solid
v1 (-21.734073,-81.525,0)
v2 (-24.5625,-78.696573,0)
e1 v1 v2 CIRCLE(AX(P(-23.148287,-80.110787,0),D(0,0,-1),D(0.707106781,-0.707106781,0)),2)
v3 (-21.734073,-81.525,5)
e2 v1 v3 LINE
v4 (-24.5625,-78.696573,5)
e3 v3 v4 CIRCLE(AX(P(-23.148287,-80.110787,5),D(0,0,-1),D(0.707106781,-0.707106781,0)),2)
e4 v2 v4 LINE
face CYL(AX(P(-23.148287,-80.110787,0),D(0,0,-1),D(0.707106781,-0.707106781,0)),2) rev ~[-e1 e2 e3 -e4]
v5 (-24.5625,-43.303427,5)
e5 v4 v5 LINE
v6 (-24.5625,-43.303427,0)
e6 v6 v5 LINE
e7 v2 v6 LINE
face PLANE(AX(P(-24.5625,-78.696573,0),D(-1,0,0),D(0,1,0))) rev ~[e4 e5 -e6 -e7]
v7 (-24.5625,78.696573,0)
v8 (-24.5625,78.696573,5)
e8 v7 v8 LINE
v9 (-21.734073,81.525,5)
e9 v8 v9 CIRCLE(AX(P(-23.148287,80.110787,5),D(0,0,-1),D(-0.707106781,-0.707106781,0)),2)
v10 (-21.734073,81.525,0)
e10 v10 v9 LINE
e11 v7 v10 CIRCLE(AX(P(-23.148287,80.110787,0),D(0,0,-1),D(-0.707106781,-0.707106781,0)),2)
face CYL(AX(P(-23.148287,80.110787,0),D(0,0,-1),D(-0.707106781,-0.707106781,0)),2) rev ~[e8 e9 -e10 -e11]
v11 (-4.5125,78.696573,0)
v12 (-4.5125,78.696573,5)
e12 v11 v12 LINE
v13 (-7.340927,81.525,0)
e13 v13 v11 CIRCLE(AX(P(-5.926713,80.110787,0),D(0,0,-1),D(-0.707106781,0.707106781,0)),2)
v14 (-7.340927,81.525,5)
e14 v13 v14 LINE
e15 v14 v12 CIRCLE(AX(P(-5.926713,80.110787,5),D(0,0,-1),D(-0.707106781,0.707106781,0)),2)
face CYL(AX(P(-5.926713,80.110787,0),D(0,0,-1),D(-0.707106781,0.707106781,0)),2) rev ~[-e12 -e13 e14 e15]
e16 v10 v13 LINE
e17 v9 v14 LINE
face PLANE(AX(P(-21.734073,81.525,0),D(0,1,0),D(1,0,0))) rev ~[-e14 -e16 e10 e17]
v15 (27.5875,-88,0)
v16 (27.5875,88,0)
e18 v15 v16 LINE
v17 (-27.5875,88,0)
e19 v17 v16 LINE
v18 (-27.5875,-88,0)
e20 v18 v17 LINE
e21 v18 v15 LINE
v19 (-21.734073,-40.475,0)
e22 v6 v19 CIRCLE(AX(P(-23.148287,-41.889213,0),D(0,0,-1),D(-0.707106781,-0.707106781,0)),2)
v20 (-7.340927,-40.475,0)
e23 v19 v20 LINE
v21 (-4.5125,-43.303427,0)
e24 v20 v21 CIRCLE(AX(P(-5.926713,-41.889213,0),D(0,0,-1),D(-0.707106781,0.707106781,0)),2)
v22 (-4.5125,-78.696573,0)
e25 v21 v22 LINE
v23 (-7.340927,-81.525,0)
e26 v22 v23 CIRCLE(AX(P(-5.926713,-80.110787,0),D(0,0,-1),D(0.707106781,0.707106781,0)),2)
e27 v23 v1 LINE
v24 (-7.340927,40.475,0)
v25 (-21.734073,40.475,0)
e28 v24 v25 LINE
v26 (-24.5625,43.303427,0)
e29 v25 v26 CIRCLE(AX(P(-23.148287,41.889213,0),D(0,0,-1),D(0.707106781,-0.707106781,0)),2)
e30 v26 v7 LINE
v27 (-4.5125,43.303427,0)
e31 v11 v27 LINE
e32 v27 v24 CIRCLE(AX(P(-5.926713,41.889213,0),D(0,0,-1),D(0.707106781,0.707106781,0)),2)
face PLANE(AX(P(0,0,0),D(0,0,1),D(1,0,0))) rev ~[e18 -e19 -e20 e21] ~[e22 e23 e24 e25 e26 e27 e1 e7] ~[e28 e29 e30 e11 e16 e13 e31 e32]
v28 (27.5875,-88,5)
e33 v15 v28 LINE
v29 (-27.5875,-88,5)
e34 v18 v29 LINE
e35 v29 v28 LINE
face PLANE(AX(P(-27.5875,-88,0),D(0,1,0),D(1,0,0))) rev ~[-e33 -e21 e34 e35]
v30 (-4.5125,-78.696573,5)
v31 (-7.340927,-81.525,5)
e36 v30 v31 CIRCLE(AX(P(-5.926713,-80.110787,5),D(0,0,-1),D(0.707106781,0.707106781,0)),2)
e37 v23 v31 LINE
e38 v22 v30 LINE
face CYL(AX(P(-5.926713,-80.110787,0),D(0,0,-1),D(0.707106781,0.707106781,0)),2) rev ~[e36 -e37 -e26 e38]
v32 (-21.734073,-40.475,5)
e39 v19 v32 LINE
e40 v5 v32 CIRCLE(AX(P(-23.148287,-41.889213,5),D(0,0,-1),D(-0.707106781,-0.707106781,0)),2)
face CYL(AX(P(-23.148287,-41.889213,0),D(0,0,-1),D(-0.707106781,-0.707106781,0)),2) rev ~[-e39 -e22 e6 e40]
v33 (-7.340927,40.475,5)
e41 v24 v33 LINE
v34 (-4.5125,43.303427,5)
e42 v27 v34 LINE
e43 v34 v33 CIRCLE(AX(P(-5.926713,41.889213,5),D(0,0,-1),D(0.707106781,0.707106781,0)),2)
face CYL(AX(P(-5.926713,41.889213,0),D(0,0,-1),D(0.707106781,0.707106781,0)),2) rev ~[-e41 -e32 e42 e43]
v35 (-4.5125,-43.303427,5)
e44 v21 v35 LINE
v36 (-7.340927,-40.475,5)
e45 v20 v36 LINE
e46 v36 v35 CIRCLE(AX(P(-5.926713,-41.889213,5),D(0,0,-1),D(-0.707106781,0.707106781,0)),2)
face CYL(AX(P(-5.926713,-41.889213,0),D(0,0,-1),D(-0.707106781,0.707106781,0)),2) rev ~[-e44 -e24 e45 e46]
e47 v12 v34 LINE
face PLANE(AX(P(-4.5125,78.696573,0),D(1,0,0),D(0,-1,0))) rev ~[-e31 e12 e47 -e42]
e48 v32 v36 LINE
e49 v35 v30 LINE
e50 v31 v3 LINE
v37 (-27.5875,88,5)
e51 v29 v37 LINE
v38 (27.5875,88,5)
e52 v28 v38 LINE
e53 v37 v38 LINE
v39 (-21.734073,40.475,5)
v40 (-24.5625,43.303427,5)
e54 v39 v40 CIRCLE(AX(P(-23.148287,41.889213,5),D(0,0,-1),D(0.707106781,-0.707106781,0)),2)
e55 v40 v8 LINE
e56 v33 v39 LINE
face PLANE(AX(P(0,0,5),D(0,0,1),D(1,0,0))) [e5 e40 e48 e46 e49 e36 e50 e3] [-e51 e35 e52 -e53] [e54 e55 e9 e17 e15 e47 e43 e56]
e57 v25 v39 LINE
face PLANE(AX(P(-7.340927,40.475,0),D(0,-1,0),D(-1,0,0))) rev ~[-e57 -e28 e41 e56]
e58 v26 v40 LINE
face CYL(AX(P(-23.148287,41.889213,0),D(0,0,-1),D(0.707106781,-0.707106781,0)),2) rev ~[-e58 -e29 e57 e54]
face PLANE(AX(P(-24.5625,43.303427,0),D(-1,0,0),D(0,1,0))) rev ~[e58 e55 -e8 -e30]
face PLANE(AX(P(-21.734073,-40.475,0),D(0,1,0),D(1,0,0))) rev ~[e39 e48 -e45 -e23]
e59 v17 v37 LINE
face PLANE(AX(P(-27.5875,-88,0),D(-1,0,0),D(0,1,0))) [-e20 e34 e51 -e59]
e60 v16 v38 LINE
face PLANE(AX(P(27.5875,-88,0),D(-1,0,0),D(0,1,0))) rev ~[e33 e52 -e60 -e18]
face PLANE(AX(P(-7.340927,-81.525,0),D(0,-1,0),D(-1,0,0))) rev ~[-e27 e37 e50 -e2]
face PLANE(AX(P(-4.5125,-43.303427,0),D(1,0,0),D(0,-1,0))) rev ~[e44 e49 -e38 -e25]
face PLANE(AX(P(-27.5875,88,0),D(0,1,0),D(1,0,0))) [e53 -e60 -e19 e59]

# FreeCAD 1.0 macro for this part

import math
import FreeCAD as App
import Part
import Sketcher
from FreeCAD import Vector

doc = App.newDocument("Part")
body = doc.addObject("PartDesign::Body", "Body")

# Sketch on XY plane
sketch1 = body.newObject("Sketcher::SketchObject", "Sketch")
sketch1.AttachmentSupport = (doc.getObject("XY_Plane"), [""])
sketch1.MapMode = "FlatFace"
sketch1.addGeometry(Part.LineSegment(Vector(-27.6, 88, 0), Vector(-27.6, -88, 0)), False)
sketch1.addGeometry(Part.LineSegment(Vector(-27.6, -88, 0), Vector(27.6, -88, 0)), False)
sketch1.addGeometry(Part.LineSegment(Vector(27.6, -88, 0), Vector(27.6, 88, 0)), False)
sketch1.addGeometry(Part.LineSegment(Vector(27.6, 88, 0), Vector(-27.6, 88, 0)), False)
sketch1.addGeometry(Part.LineSegment(Vector(-24.6, -78.7, 0), Vector(-24.6, -43.3, 0)), False)
sketch1.addGeometry(Part.ArcOfCircle(Part.Circle(Vector(-23.1, -41.9, 0), Vector(0, 0, 1), 2), math.radians(45), math.radians(225)), False)
sketch1.addGeometry(Part.LineSegment(Vector(-21.7, -40.5, 0), Vector(-7.3, -40.5, 0)), False)
sketch1.addGeometry(Part.ArcOfCircle(Part.Circle(Vector(-5.9, -41.9, 0), Vector(0, 0, 1), 2), math.radians(-45), math.radians(135)), False)
sketch1.addGeometry(Part.LineSegment(Vector(-4.5, -43.3, 0), Vector(-4.5, -78.7, 0)), False)
sketch1.addGeometry(Part.ArcOfCircle(Part.Circle(Vector(-5.9, -80.1, 0), Vector(0, 0, 1), 2), math.radians(-135), math.radians(45)), False)
sketch1.addGeometry(Part.LineSegment(Vector(-7.3, -81.5, 0), Vector(-21.7, -81.5, 0)), False)
sketch1.addGeometry(Part.ArcOfCircle(Part.Circle(Vector(-23.1, -80.1, 0), Vector(0, 0, 1), 2), math.radians(135), math.radians(315)), False)
sketch1.addGeometry(Part.ArcOfCircle(Part.Circle(Vector(-23.1, 41.9, 0), Vector(0, 0, 1), 2), math.radians(135), math.radians(315)), False)
sketch1.addGeometry(Part.LineSegment(Vector(-24.6, 43.3, 0), Vector(-24.6, 78.7, 0)), False)
sketch1.addGeometry(Part.ArcOfCircle(Part.Circle(Vector(-23.1, 80.1, 0), Vector(0, 0, 1), 2), math.radians(45), math.radians(225)), False)
sketch1.addGeometry(Part.LineSegment(Vector(-21.7, 81.5, 0), Vector(-7.3, 81.5, 0)), False)
sketch1.addGeometry(Part.ArcOfCircle(Part.Circle(Vector(-5.9, 80.1, 0), Vector(0, 0, 1), 2), math.radians(-45), math.radians(135)), False)
sketch1.addGeometry(Part.LineSegment(Vector(-4.5, 78.7, 0), Vector(-4.5, 43.3, 0)), False)
sketch1.addGeometry(Part.ArcOfCircle(Part.Circle(Vector(-5.9, 41.9, 0), Vector(0, 0, 1), 2), math.radians(-135), math.radians(45)), False)
sketch1.addGeometry(Part.LineSegment(Vector(-7.3, 40.5, 0), Vector(-21.7, 40.5, 0)), False)
sketch1.addConstraint(Sketcher.Constraint("Coincident", 0, 2, 1, 1))
sketch1.addConstraint(Sketcher.Constraint("Coincident", 1, 2, 2, 1))
sketch1.addConstraint(Sketcher.Constraint("Coincident", 2, 2, 3, 1))
sketch1.addConstraint(Sketcher.Constraint("Coincident", 3, 2, 0, 1))
sketch1.addConstraint(Sketcher.Constraint("Coincident", 4, 2, 5, 2))
sketch1.addConstraint(Sketcher.Constraint("Coincident", 5, 1, 6, 1))
sketch1.addConstraint(Sketcher.Constraint("Coincident", 6, 2, 7, 2))
sketch1.addConstraint(Sketcher.Constraint("Coincident", 7, 1, 8, 1))
sketch1.addConstraint(Sketcher.Constraint("Coincident", 8, 2, 9, 2))
sketch1.addConstraint(Sketcher.Constraint("Coincident", 9, 1, 10, 1))
sketch1.addConstraint(Sketcher.Constraint("Coincident", 10, 2, 11, 2))
sketch1.addConstraint(Sketcher.Constraint("Coincident", 11, 1, 4, 1))
sketch1.addConstraint(Sketcher.Constraint("Coincident", 12, 1, 13, 1))
sketch1.addConstraint(Sketcher.Constraint("Coincident", 13, 2, 14, 2))
sketch1.addConstraint(Sketcher.Constraint("Coincident", 14, 1, 15, 1))
sketch1.addConstraint(Sketcher.Constraint("Coincident", 15, 2, 16, 2))
sketch1.addConstraint(Sketcher.Constraint("Coincident", 16, 1, 17, 1))
sketch1.addConstraint(Sketcher.Constraint("Coincident", 17, 2, 18, 2))
sketch1.addConstraint(Sketcher.Constraint("Coincident", 18, 1, 19, 1))
sketch1.addConstraint(Sketcher.Constraint("Coincident", 19, 2, 12, 2))
sketch1.addConstraint(Sketcher.Constraint("Vertical", 0))
sketch1.addConstraint(Sketcher.Constraint("Horizontal", 1))
sketch1.addConstraint(Sketcher.Constraint("Vertical", 2))
sketch1.addConstraint(Sketcher.Constraint("Horizontal", 3))
sketch1.addConstraint(Sketcher.Constraint("Vertical", 4))
sketch1.addConstraint(Sketcher.Constraint("Horizontal", 6))
sketch1.addConstraint(Sketcher.Constraint("Vertical", 8))
sketch1.addConstraint(Sketcher.Constraint("Horizontal", 10))
sketch1.addConstraint(Sketcher.Constraint("Vertical", 13))
sketch1.addConstraint(Sketcher.Constraint("Horizontal", 15))
sketch1.addConstraint(Sketcher.Constraint("Vertical", 17))
sketch1.addConstraint(Sketcher.Constraint("Horizontal", 19))
sketch1.addConstraint(Sketcher.Constraint("Equal", 5, 7))
sketch1.addConstraint(Sketcher.Constraint("Equal", 7, 9))
sketch1.addConstraint(Sketcher.Constraint("Equal", 9, 11))
sketch1.addConstraint(Sketcher.Constraint("Equal", 11, 12))
sketch1.addConstraint(Sketcher.Constraint("Equal", 12, 14))
sketch1.addConstraint(Sketcher.Constraint("Equal", 14, 16))
sketch1.addConstraint(Sketcher.Constraint("Equal", 16, 18))
sketch1.addConstraint(Sketcher.Constraint("Symmetric", 0, 2, 2, 2, -1, 1))
sketch1.addConstraint(Sketcher.Constraint("Symmetric", 5, 3, 12, 3, -1))
sketch1.addConstraint(Sketcher.Constraint("Symmetric", 11, 3, 14, 3, -1))
sketch1.addConstraint(Sketcher.Constraint("Symmetric", 9, 3, 16, 3, -1))
sketch1.addConstraint(Sketcher.Constraint("Symmetric", 7, 3, 18, 3, -1))
sketch1.addConstraint(Sketcher.Constraint("Horizontal", 5, 3, 7, 3))
sketch1.addConstraint(Sketcher.Constraint("Horizontal", 9, 3, 11, 3))
sketch1.addConstraint(Sketcher.Constraint("Horizontal", 4, 2, 7, 1))
sketch1.addConstraint(Sketcher.Constraint("Horizontal", 8, 2, 11, 1))
sketch1.addConstraint(Sketcher.Constraint("Horizontal", 13, 2, 16, 1))
sketch1.addConstraint(Sketcher.Constraint("Vertical", 7, 3, 9, 3))
sketch1.addConstraint(Sketcher.Constraint("Vertical", 6, 2, 9, 1))
sketch1.addConstraint(Sketcher.Constraint("Vertical", 11, 1, 12, 1))
sketch1.addConstraint(Sketcher.Constraint("Vertical", 10, 2, 14, 1))
sketch1.addConstraint(Sketcher.Constraint("Vertical", 15, 2, 18, 1))
sketch1.addConstraint(Sketcher.Constraint("Radius", 5, 2.0))
sketch1.addConstraint(Sketcher.Constraint("DistanceY", 0, 2, 0, 1, 176.0))
sketch1.addConstraint(Sketcher.Constraint("DistanceY", 11, 3, 12, 3, 122.0))
sketch1.addConstraint(Sketcher.Constraint("DistanceX", 8, 2, 1, 2, 32.1))
sketch1.addConstraint(Sketcher.Constraint("DistanceX", 1, 1, 1, 2, 55.175))
sketch1.addConstraint(Sketcher.Constraint("DistanceX", 4, 2, 7, 1, 20.05))
sketch1.addConstraint(Sketcher.Constraint("DistanceY", 5, 1, -1, 1, 40.475))
sketch1.addConstraint(Sketcher.Constraint("DistanceX", 6, 1, 6, 2, 14.393146))
sketch1.addConstraint(Sketcher.Constraint("DistanceY", 11, 3, 4, 2, 36.80736))
pad1 = body.newObject("PartDesign::Pad", "Pad")
pad1.Profile = sketch1
pad1.Length = 5

doc.recompute()
